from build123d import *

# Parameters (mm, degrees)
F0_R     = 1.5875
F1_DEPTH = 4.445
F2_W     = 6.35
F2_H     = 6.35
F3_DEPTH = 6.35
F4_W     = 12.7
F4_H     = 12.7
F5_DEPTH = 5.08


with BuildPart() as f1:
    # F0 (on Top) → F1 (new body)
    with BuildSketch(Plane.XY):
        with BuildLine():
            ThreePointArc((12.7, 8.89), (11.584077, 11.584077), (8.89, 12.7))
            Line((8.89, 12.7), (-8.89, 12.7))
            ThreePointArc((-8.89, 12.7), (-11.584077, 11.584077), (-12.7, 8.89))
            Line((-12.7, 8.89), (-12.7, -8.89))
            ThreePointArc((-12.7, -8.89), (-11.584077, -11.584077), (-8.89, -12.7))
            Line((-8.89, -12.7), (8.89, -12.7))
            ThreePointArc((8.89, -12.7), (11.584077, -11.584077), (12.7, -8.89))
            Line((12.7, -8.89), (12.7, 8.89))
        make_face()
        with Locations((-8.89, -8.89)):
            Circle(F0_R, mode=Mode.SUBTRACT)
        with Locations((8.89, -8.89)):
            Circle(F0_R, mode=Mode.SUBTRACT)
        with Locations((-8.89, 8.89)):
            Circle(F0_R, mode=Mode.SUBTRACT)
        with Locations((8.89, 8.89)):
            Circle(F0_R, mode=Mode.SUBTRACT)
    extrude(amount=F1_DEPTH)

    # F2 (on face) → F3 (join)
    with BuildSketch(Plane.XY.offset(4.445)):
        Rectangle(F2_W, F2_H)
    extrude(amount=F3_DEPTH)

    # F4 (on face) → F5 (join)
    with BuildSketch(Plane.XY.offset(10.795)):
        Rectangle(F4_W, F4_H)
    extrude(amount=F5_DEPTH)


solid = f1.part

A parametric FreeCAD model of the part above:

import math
import FreeCAD as App
import Part
import Sketcher

V = App.Vector
Q = App.Units.Quantity


def add_polygon(sketch, points):
    """Adds a closed chain of lines whose ends are joined by coincident constraints."""
    first, n = sketch.GeometryCount, len(points)
    for a, b in zip(points, points[1:] + points[:1]):
        sketch.addGeometry(Part.LineSegment(App.Vector(*a, 0), App.Vector(*b, 0)), False)
    for i in range(n):
        sketch.addConstraint(Sketcher.Constraint("Coincident", first + i, 2, first + (i + 1) % n, 1))

doc = App.newDocument("Part")
body = doc.addObject("PartDesign::Body", "Body")

sketch1 = doc.addObject("Sketcher::SketchObject", "Sketch")
body.addObject(sketch1)
sketch1.AttachmentSupport = (doc.XY_Plane, [""])
sketch1.MapMode = "FlatFace"
sketch1.addGeometry([
    Part.ArcOfCircle(Part.Circle(V(8.9, 8.9, 0), V(0, 0, 1), 3.8), math.radians(0), math.radians(90)),
    Part.LineSegment(V(8.9, 12.7, 0), V(-8.9, 12.7, 0)),
    Part.ArcOfCircle(Part.Circle(V(-8.9, 8.9, 0), V(0, 0, 1), 3.8), math.radians(90), math.radians(180)),
    Part.LineSegment(V(-12.7, 8.9, 0), V(-12.7, -8.9, 0)),
    Part.ArcOfCircle(Part.Circle(V(-8.9, -8.9, 0), V(0, 0, 1), 3.8), math.radians(180), math.radians(270)),
    Part.LineSegment(V(-8.9, -12.7, 0), V(8.9, -12.7, 0)),
    Part.ArcOfCircle(Part.Circle(V(8.9, -8.9, 0), V(0, 0, 1), 3.8), math.radians(-90), math.radians(0)),
    Part.LineSegment(V(12.7, -8.9, 0), V(12.7, 8.9, 0)),
    Part.Circle(V(-8.9, -8.9, 0), V(0, 0, 1), 1.6),
    Part.Circle(V(8.9, -8.9, 0), V(0, 0, 1), 1.6),
    Part.Circle(V(-8.9, 8.9, 0), V(0, 0, 1), 1.6),
    Part.Circle(V(8.9, 8.9, 0), V(0, 0, 1), 1.6),
], False)
sketch1.addConstraint([
    Sketcher.Constraint("Tangent", 0, 2, 1, 1),
    Sketcher.Constraint("Tangent", 1, 2, 2, 1),
    Sketcher.Constraint("Tangent", 2, 2, 3, 1),
    Sketcher.Constraint("Tangent", 3, 2, 4, 1),
    Sketcher.Constraint("Tangent", 4, 2, 5, 1),
    Sketcher.Constraint("Tangent", 5, 2, 6, 1),
    Sketcher.Constraint("Tangent", 6, 2, 7, 1),
    Sketcher.Constraint("Tangent", 7, 2, 0, 1),
    Sketcher.Constraint("Horizontal", 1),
    Sketcher.Constraint("Vertical", 3),
    Sketcher.Constraint("Horizontal", 5),
    Sketcher.Constraint("Vertical", 7),
    Sketcher.Constraint("Coincident", 8, 3, 4, 3),
    Sketcher.Constraint("Coincident", 9, 3, 6, 3),
    Sketcher.Constraint("Coincident", 10, 3, 2, 3),
    Sketcher.Constraint("Coincident", 11, 3, 0, 3),
    Sketcher.Constraint("Equal", 0, 2),
    Sketcher.Constraint("Equal", 2, 4),
    Sketcher.Constraint("Equal", 4, 6),
    Sketcher.Constraint("Equal", 8, 9),
    Sketcher.Constraint("Equal", 9, 10),
    Sketcher.Constraint("Equal", 10, 11),
    Sketcher.Constraint("Symmetric", 0, 3, 4, 3, -1, 1),
    Sketcher.Constraint("Equal", 5, 3),
    Sketcher.Constraint("Radius", 0, Q("0.15 in")),
    Sketcher.Constraint("Diameter", 8, Q("0.125 in")),
    Sketcher.Constraint("DistanceX", 1, 2, 1, 1, Q("0.7 in")),
])
pad1 = doc.addObject("PartDesign::Pad", "Pad")
body.addObject(pad1)
pad1.Profile = sketch1
pad1.Length = Q("0.175 in")

sketch2 = doc.addObject("Sketcher::SketchObject", "Sketch001")
body.addObject(sketch2)
sketch2.AttachmentSupport = (doc.XY_Plane, [""])
sketch2.MapMode = "FlatFace"
sketch2.AttachmentOffset = App.Placement(V(0, 0, 0.175 * 25.4), App.Rotation())
add_polygon(sketch2, [(-3, 3), (-3, -3), (3, -3), (3, 3)])
sketch2.addConstraint([
    Sketcher.Constraint("Vertical", 0),
    Sketcher.Constraint("Horizontal", 1),
    Sketcher.Constraint("Vertical", 2),
    Sketcher.Constraint("Horizontal", 3),
    Sketcher.Constraint("Symmetric", 0, 2, 2, 2, -1, 1),
    Sketcher.Constraint("Equal", 3, 0),
    Sketcher.Constraint("DistanceX", 1, 1, 1, 2, Q("0.25 in")),
])
pad2 = doc.addObject("PartDesign::Pad", "Pad001")
body.addObject(pad2)
pad2.Profile = sketch2
pad2.Length = Q("0.25 in")

sketch3 = doc.addObject("Sketcher::SketchObject", "Sketch002")
body.addObject(sketch3)
sketch3.AttachmentSupport = (doc.XY_Plane, [""])
sketch3.MapMode = "FlatFace"
sketch3.AttachmentOffset = App.Placement(V(0, 0, 0.425 * 25.4), App.Rotation())
add_polygon(sketch3, [(-6, 6), (-6, -6), (6, -6), (6, 6)])
sketch3.addConstraint([
    Sketcher.Constraint("Vertical", 0),
    Sketcher.Constraint("Horizontal", 1),
    Sketcher.Constraint("Vertical", 2),
    Sketcher.Constraint("Horizontal", 3),
    Sketcher.Constraint("Symmetric", 0, 2, 2, 2, -1, 1),
    Sketcher.Constraint("Equal", 3, 0),
    Sketcher.Constraint("DistanceX", 1, 1, 1, 2, Q("0.5 in")),
])
pad3 = doc.addObject("PartDesign::Pad", "Pad002")
body.addObject(pad3)
pad3.Profile = sketch3
pad3.Length = Q("0.2 in")

doc.recompute()
